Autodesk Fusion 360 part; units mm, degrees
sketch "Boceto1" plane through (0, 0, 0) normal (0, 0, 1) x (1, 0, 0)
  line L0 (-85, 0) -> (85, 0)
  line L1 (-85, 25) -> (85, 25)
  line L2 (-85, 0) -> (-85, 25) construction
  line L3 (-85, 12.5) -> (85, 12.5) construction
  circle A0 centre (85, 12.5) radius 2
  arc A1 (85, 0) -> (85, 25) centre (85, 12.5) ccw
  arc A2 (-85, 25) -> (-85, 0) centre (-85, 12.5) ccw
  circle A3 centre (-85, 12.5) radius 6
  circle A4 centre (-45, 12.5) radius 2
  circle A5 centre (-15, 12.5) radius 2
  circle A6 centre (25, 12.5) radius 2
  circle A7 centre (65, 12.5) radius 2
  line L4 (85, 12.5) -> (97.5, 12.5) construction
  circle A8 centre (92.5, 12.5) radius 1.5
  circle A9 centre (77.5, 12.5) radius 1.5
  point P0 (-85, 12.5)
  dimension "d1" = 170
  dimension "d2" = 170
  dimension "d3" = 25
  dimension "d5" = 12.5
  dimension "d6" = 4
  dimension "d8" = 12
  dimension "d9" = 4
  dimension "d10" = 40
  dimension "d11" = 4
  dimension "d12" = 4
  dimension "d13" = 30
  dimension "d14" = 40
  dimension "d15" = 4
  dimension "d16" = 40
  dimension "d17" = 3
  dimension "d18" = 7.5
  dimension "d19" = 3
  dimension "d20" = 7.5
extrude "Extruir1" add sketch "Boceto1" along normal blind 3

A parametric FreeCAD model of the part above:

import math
import FreeCAD as App
import Part
import Sketcher
from FreeCAD import Vector

doc = App.newDocument("Part")
body = doc.addObject("PartDesign::Body", "Body")

# Sketch on XY plane
sketch1 = body.newObject("Sketcher::SketchObject", "Sketch")
sketch1.AttachmentSupport = (doc.getObject("XY_Plane"), [""])
sketch1.MapMode = "FlatFace"
sketch1.addGeometry(Part.ArcOfCircle(Part.Circle(Vector(-85, 12.5, 0), Vector(0, 0, 1), 12.5), math.radians(90), math.radians(270)), False)
sketch1.addGeometry(Part.LineSegment(Vector(-85, 0, 0), Vector(85, 0, 0)), False)
sketch1.addGeometry(Part.ArcOfCircle(Part.Circle(Vector(85, 12.5, 0), Vector(0, 0, 1), 12.5), math.radians(-90), math.radians(90)), False)
sketch1.addGeometry(Part.LineSegment(Vector(85, 25, 0), Vector(-85, 25, 0)), False)
sketch1.addGeometry(Part.Circle(Vector(-85, 12.5, 0), Vector(0, 0, 1), 6), False)
sketch1.addGeometry(Part.Circle(Vector(-45, 12.5, 0), Vector(0, 0, 1), 2), False)
sketch1.addGeometry(Part.Circle(Vector(-15, 12.5, 0), Vector(0, 0, 1), 2), False)
sketch1.addGeometry(Part.Circle(Vector(25, 12.5, 0), Vector(0, 0, 1), 2), False)
sketch1.addGeometry(Part.Circle(Vector(65, 12.5, 0), Vector(0, 0, 1), 2), False)
sketch1.addGeometry(Part.Circle(Vector(77.5, 12.5, 0), Vector(0, 0, 1), 1.5), False)
sketch1.addGeometry(Part.Circle(Vector(85, 12.5, 0), Vector(0, 0, 1), 2), False)
sketch1.addGeometry(Part.Circle(Vector(92.5, 12.5, 0), Vector(0, 0, 1), 1.5), False)
sketch1.addConstraint(Sketcher.Constraint("Tangent", 0, 2, 1, 1))
sketch1.addConstraint(Sketcher.Constraint("Tangent", 1, 2, 2, 1))
sketch1.addConstraint(Sketcher.Constraint("Tangent", 2, 2, 3, 1))
sketch1.addConstraint(Sketcher.Constraint("Tangent", 3, 2, 0, 1))
sketch1.addConstraint(Sketcher.Constraint("Horizontal", 1))
sketch1.addConstraint(Sketcher.Constraint("Horizontal", 3))
sketch1.addConstraint(Sketcher.Constraint("Coincident", 4, 3, 0, 3))
sketch1.addConstraint(Sketcher.Constraint("Coincident", 10, 3, 2, 3))
sketch1.addConstraint(Sketcher.Constraint("Equal", 5, 6))
sketch1.addConstraint(Sketcher.Constraint("Equal", 6, 7))
sketch1.addConstraint(Sketcher.Constraint("Equal", 7, 8))
sketch1.addConstraint(Sketcher.Constraint("Equal", 8, 10))
sketch1.addConstraint(Sketcher.Constraint("Equal", 9, 11))
sketch1.addConstraint(Sketcher.Constraint("Symmetric", 0, 2, 1, 2, -1, 1))
sketch1.addConstraint(Sketcher.Constraint("Horizontal", 4, 3, 5, 3))
sketch1.addConstraint(Sketcher.Constraint("Horizontal", 5, 3, 6, 3))
sketch1.addConstraint(Sketcher.Constraint("Horizontal", 6, 3, 7, 3))
sketch1.addConstraint(Sketcher.Constraint("Horizontal", 7, 3, 8, 3))
sketch1.addConstraint(Sketcher.Constraint("Horizontal", 8, 3, 9, 3))
sketch1.addConstraint(Sketcher.Constraint("Horizontal", 10, 3, 11, 3))
sketch1.addConstraint(Sketcher.Constraint("Diameter", 4, 12.0))
sketch1.addConstraint(Sketcher.Constraint("Diameter", 5, 4.0))
sketch1.addConstraint(Sketcher.Constraint("Diameter", 9, 3.0))
sketch1.addConstraint(Sketcher.Constraint("Radius", 0, 12.5))
sketch1.addConstraint(Sketcher.Constraint("DistanceX", 1, 1, 1, 2, 170.0))
sketch1.addConstraint(Sketcher.Constraint("DistanceX", -1, 1, 7, 3, 25.0))
sketch1.addConstraint(Sketcher.Constraint("DistanceX", 0, 3, 5, 3, 40.0))
sketch1.addConstraint(Sketcher.Constraint("DistanceX", 5, 3, 6, 3, 30.0))
sketch1.addConstraint(Sketcher.Constraint("DistanceX", 7, 3, 8, 3, 40.0))
sketch1.addConstraint(Sketcher.Constraint("DistanceX", 9, 3, 2, 3, 7.5))
sketch1.addConstraint(Sketcher.Constraint("DistanceX", 2, 3, 11, 3, 7.5))
pad1 = body.newObject("PartDesign::Pad", "Pad")
pad1.Profile = sketch1
pad1.Length = 3

doc.recompute()
